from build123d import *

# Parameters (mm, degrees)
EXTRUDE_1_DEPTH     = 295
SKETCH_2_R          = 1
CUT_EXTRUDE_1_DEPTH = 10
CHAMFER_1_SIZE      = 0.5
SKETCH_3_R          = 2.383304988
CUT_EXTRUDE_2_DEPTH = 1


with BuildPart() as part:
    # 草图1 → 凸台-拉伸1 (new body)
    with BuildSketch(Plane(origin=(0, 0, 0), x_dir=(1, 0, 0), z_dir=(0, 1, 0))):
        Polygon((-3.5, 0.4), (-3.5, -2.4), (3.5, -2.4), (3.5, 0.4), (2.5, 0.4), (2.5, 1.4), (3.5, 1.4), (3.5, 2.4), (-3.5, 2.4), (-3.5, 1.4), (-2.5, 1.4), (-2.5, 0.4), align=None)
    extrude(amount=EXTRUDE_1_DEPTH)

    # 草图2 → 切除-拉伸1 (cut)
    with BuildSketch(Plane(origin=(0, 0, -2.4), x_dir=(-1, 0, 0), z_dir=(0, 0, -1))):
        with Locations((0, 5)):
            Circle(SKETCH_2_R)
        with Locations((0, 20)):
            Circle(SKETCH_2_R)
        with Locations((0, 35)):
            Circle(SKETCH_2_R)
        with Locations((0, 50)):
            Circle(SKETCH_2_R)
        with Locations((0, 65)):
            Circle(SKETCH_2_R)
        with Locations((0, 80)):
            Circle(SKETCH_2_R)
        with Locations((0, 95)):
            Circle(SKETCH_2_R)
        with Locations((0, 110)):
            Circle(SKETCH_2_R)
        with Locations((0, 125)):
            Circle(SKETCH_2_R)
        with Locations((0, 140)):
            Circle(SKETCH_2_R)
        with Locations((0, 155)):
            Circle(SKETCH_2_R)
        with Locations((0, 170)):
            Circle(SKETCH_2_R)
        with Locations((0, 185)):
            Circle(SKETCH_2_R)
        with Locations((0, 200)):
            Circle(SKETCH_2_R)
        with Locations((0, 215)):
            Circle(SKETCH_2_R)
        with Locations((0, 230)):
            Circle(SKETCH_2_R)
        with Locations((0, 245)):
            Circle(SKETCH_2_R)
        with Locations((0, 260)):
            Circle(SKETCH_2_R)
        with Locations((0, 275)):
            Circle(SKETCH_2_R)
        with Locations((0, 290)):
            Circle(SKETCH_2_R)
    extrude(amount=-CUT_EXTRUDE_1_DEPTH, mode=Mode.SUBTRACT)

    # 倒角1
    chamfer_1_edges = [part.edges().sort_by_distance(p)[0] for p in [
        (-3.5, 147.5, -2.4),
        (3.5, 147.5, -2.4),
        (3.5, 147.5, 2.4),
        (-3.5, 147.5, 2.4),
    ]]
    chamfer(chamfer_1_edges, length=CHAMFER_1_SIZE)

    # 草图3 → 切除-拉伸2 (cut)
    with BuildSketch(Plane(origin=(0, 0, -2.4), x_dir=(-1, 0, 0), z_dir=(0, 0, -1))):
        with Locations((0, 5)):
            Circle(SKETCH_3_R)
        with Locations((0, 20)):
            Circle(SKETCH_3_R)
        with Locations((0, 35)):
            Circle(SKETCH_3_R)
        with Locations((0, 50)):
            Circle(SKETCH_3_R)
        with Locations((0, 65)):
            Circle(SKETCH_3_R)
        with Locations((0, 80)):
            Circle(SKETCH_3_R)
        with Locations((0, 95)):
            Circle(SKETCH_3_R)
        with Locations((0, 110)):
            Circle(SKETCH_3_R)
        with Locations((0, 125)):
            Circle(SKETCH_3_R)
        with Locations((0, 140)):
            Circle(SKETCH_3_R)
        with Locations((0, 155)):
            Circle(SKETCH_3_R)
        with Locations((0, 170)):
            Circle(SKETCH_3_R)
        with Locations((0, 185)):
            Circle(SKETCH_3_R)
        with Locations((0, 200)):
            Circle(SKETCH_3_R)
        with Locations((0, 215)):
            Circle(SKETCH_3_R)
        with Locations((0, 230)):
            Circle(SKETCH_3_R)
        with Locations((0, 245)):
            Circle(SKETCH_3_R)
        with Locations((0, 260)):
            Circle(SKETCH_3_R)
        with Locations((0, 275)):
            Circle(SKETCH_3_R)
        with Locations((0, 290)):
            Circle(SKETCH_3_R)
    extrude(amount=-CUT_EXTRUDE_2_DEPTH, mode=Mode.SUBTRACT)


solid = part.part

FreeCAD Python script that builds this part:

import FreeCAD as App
import Part
import Sketcher

V = App.Vector


def edges_at(feature, points):
    """Names of the edges that pass closest to the given points."""
    edges = feature.Shape.Edges
    near = lambda p: min(range(len(edges)), key=lambda i: edges[i].distToShape(Part.Vertex(*p))[0])
    return sorted({f"Edge{near(p) + 1}" for p in points})


def add_polygon(sketch, points):
    """Adds a closed chain of lines whose ends are joined by coincident constraints."""
    first, n = sketch.GeometryCount, len(points)
    for a, b in zip(points, points[1:] + points[:1]):
        sketch.addGeometry(Part.LineSegment(App.Vector(*a, 0), App.Vector(*b, 0)), False)
    for i in range(n):
        sketch.addConstraint(Sketcher.Constraint("Coincident", first + i, 2, first + (i + 1) % n, 1))

doc = App.newDocument("Part")
body = doc.addObject("PartDesign::Body", "Body")

# Sketch on XZ plane
sketch1 = body.newObject("Sketcher::SketchObject", "Sketch")
sketch1.AttachmentSupport = (doc.getObject("XZ_Plane"), [""])
sketch1.MapMode = "FlatFace"
add_polygon(sketch1, [(-3.5, -0.4), (-3.5, 2.4), (3.5, 2.4), (3.5, -0.4), (2.5, -0.4), (2.5, -1.4), (3.5, -1.4), (3.5, -2.4), (-3.5, -2.4), (-3.5, -1.4), (-2.5, -1.4), (-2.5, -0.4)])  # lines 0-11
sketch1.addConstraint([
    Sketcher.Constraint("Vertical", 0),
    Sketcher.Constraint("Horizontal", 1),
    Sketcher.Constraint("Vertical", 2),
    Sketcher.Constraint("Horizontal", 3),
    Sketcher.Constraint("Vertical", 4),
    Sketcher.Constraint("Horizontal", 5),
    Sketcher.Constraint("Vertical", 6),
    Sketcher.Constraint("Horizontal", 7),
    Sketcher.Constraint("Vertical", 8),
    Sketcher.Constraint("Horizontal", 9),
    Sketcher.Constraint("Vertical", 10),
    Sketcher.Constraint("Horizontal", 11),
    Sketcher.Constraint("Symmetric", 0, 2, 6, 2, -1, 1),
    Sketcher.Constraint("Symmetric", 5, 2, 8, 2, -2),
    Sketcher.Constraint("Symmetric", 3, 2, 10, 2, -2),
    Sketcher.Constraint("Vertical", 2, 2, 5, 2),
    Sketcher.Constraint("Equal", 11, 4),
    Sketcher.Constraint("Equal", 4, 6),
    Sketcher.Constraint("DistanceX", 1, 1, 1, 2, 7.0),
    Sketcher.Constraint("DistanceX", 3, 2, 3, 1, 1.0),
    Sketcher.Constraint("DistanceY", 0, 1, 0, 2, 2.8),
])
pad1 = body.newObject("PartDesign::Pad", "Pad")
pad1.Profile = sketch1
pad1.Length = 295
pad1.Reversed = True

# Sketch on XY plane
sketch2 = body.newObject("Sketcher::SketchObject", "Sketch001")
sketch2.AttachmentSupport = (doc.getObject("XY_Plane"), [""])
sketch2.MapMode = "FlatFace"
sketch2.AttachmentOffset = App.Placement(V(0, 0, -2.4), App.Rotation())
sketch2.addGeometry([
    Part.Circle(V(0, 5, 0), V(0, 0, 1), 1),  # 0
    Part.Circle(V(0, 20, 0), V(0, 0, 1), 1),  # 1
    Part.Circle(V(0, 35, 0), V(0, 0, 1), 1),  # 2
    Part.Circle(V(0, 50, 0), V(0, 0, 1), 1),  # 3
    Part.Circle(V(0, 65, 0), V(0, 0, 1), 1),  # 4
    Part.Circle(V(0, 80, 0), V(0, 0, 1), 1),  # 5
    Part.Circle(V(0, 95, 0), V(0, 0, 1), 1),  # 6
    Part.Circle(V(0, 110, 0), V(0, 0, 1), 1),  # 7
    Part.Circle(V(0, 125, 0), V(0, 0, 1), 1),  # 8
    Part.Circle(V(0, 140, 0), V(0, 0, 1), 1),  # 9
    Part.Circle(V(0, 155, 0), V(0, 0, 1), 1),  # 10
    Part.Circle(V(0, 170, 0), V(0, 0, 1), 1),  # 11
    Part.Circle(V(0, 185, 0), V(0, 0, 1), 1),  # 12
    Part.Circle(V(0, 200, 0), V(0, 0, 1), 1),  # 13
    Part.Circle(V(0, 215, 0), V(0, 0, 1), 1),  # 14
    Part.Circle(V(0, 230, 0), V(0, 0, 1), 1),  # 15
    Part.Circle(V(0, 245, 0), V(0, 0, 1), 1),  # 16
    Part.Circle(V(0, 260, 0), V(0, 0, 1), 1),  # 17
    Part.Circle(V(0, 275, 0), V(0, 0, 1), 1),  # 18
    Part.Circle(V(0, 290, 0), V(0, 0, 1), 1),  # 19
], False)
sketch2.addConstraint([
    Sketcher.Constraint("Equal", 0, 1),
    Sketcher.Constraint("Equal", 1, 2),
    Sketcher.Constraint("Equal", 2, 3),
    Sketcher.Constraint("Equal", 3, 4),
    Sketcher.Constraint("Equal", 4, 5),
    Sketcher.Constraint("Equal", 5, 6),
    Sketcher.Constraint("Equal", 6, 7),
    Sketcher.Constraint("Equal", 7, 8),
    Sketcher.Constraint("Equal", 8, 9),
    Sketcher.Constraint("Equal", 9, 10),
    Sketcher.Constraint("Equal", 10, 11),
    Sketcher.Constraint("Equal", 11, 12),
    Sketcher.Constraint("Equal", 12, 13),
    Sketcher.Constraint("Equal", 13, 14),
    Sketcher.Constraint("Equal", 14, 15),
    Sketcher.Constraint("Equal", 15, 16),
    Sketcher.Constraint("Equal", 16, 17),
    Sketcher.Constraint("Equal", 17, 18),
    Sketcher.Constraint("Equal", 18, 19),
    Sketcher.Constraint("PointOnObject", 0, 3, -2),
    Sketcher.Constraint("PointOnObject", 1, 3, -2),
    Sketcher.Constraint("PointOnObject", 2, 3, -2),
    Sketcher.Constraint("PointOnObject", 3, 3, -2),
    Sketcher.Constraint("PointOnObject", 4, 3, -2),
    Sketcher.Constraint("PointOnObject", 5, 3, -2),
    Sketcher.Constraint("PointOnObject", 6, 3, -2),
    Sketcher.Constraint("PointOnObject", 7, 3, -2),
    Sketcher.Constraint("PointOnObject", 8, 3, -2),
    Sketcher.Constraint("PointOnObject", 9, 3, -2),
    Sketcher.Constraint("PointOnObject", 10, 3, -2),
    Sketcher.Constraint("PointOnObject", 11, 3, -2),
    Sketcher.Constraint("PointOnObject", 12, 3, -2),
    Sketcher.Constraint("PointOnObject", 13, 3, -2),
    Sketcher.Constraint("PointOnObject", 14, 3, -2),
    Sketcher.Constraint("PointOnObject", 15, 3, -2),
    Sketcher.Constraint("PointOnObject", 16, 3, -2),
    Sketcher.Constraint("PointOnObject", 17, 3, -2),
    Sketcher.Constraint("PointOnObject", 18, 3, -2),
    Sketcher.Constraint("PointOnObject", 19, 3, -2),
    Sketcher.Constraint("Diameter", 0, 2.0),
    Sketcher.Constraint("DistanceY", -1, 1, 0, 3, 5.0),
    Sketcher.Constraint("DistanceY", -1, 1, 1, 3, 20.0),
    Sketcher.Constraint("DistanceY", -1, 1, 2, 3, 35.0),
    Sketcher.Constraint("DistanceY", -1, 1, 3, 3, 50.0),
    Sketcher.Constraint("DistanceY", -1, 1, 4, 3, 65.0),
    Sketcher.Constraint("DistanceY", -1, 1, 5, 3, 80.0),
    Sketcher.Constraint("DistanceY", -1, 1, 6, 3, 95.0),
    Sketcher.Constraint("DistanceY", -1, 1, 7, 3, 110.0),
    Sketcher.Constraint("DistanceY", -1, 1, 8, 3, 125.0),
    Sketcher.Constraint("DistanceY", -1, 1, 9, 3, 140.0),
    Sketcher.Constraint("DistanceY", -1, 1, 10, 3, 155.0),
    Sketcher.Constraint("DistanceY", -1, 1, 11, 3, 170.0),
    Sketcher.Constraint("DistanceY", -1, 1, 12, 3, 185.0),
    Sketcher.Constraint("DistanceY", -1, 1, 13, 3, 200.0),
    Sketcher.Constraint("DistanceY", -1, 1, 14, 3, 215.0),
    Sketcher.Constraint("DistanceY", -1, 1, 15, 3, 230.0),
    Sketcher.Constraint("DistanceY", -1, 1, 16, 3, 245.0),
    Sketcher.Constraint("DistanceY", -1, 1, 17, 3, 260.0),
    Sketcher.Constraint("DistanceY", -1, 1, 18, 3, 275.0),
    Sketcher.Constraint("DistanceY", -1, 1, 19, 3, 290.0),
])
pocket1 = body.newObject("PartDesign::Pocket", "Pocket")
pocket1.Profile = sketch2
pocket1.Length = 10
pocket1.Reversed = True
doc.recompute()

chamfer = body.newObject("PartDesign::Chamfer", "Chamfer")
chamfer.Base = (pocket1, edges_at(pocket1, [
    (-3.5, 147.5, -2.4),
    (3.5, 147.5, -2.4),
    (3.5, 147.5, 2.4),
    (-3.5, 147.5, 2.4),
]))
chamfer.Size = 0.5

# Sketch on XY plane
sketch3 = body.newObject("Sketcher::SketchObject", "Sketch002")
sketch3.AttachmentSupport = (doc.getObject("XY_Plane"), [""])
sketch3.MapMode = "FlatFace"
sketch3.AttachmentOffset = App.Placement(V(0, 0, -2.4), App.Rotation())
sketch3.addGeometry([
    Part.Circle(V(0, 5, 0), V(0, 0, 1), 2.383305),  # 0
    Part.Circle(V(0, 20, 0), V(0, 0, 1), 2.383305),  # 1
    Part.Circle(V(0, 35, 0), V(0, 0, 1), 2.383305),  # 2
    Part.Circle(V(0, 50, 0), V(0, 0, 1), 2.383305),  # 3
    Part.Circle(V(0, 65, 0), V(0, 0, 1), 2.383305),  # 4
    Part.Circle(V(0, 80, 0), V(0, 0, 1), 2.383305),  # 5
    Part.Circle(V(0, 95, 0), V(0, 0, 1), 2.383305),  # 6
    Part.Circle(V(0, 110, 0), V(0, 0, 1), 2.383305),  # 7
    Part.Circle(V(0, 125, 0), V(0, 0, 1), 2.383305),  # 8
    Part.Circle(V(0, 140, 0), V(0, 0, 1), 2.383305),  # 9
    Part.Circle(V(0, 155, 0), V(0, 0, 1), 2.383305),  # 10
    Part.Circle(V(0, 170, 0), V(0, 0, 1), 2.383305),  # 11
    Part.Circle(V(0, 185, 0), V(0, 0, 1), 2.383305),  # 12
    Part.Circle(V(0, 200, 0), V(0, 0, 1), 2.383305),  # 13
    Part.Circle(V(0, 215, 0), V(0, 0, 1), 2.383305),  # 14
    Part.Circle(V(0, 230, 0), V(0, 0, 1), 2.383305),  # 15
    Part.Circle(V(0, 245, 0), V(0, 0, 1), 2.383305),  # 16
    Part.Circle(V(0, 260, 0), V(0, 0, 1), 2.383305),  # 17
    Part.Circle(V(0, 275, 0), V(0, 0, 1), 2.383305),  # 18
    Part.Circle(V(0, 290, 0), V(0, 0, 1), 2.383305),  # 19
], False)
sketch3.addConstraint([
    Sketcher.Constraint("Equal", 0, 1),
    Sketcher.Constraint("Equal", 1, 2),
    Sketcher.Constraint("Equal", 2, 3),
    Sketcher.Constraint("Equal", 3, 4),
    Sketcher.Constraint("Equal", 4, 5),
    Sketcher.Constraint("Equal", 5, 6),
    Sketcher.Constraint("Equal", 6, 7),
    Sketcher.Constraint("Equal", 7, 8),
    Sketcher.Constraint("Equal", 8, 9),
    Sketcher.Constraint("Equal", 9, 10),
    Sketcher.Constraint("Equal", 10, 11),
    Sketcher.Constraint("Equal", 11, 12),
    Sketcher.Constraint("Equal", 12, 13),
    Sketcher.Constraint("Equal", 13, 14),
    Sketcher.Constraint("Equal", 14, 15),
    Sketcher.Constraint("Equal", 15, 16),
    Sketcher.Constraint("Equal", 16, 17),
    Sketcher.Constraint("Equal", 17, 18),
    Sketcher.Constraint("Equal", 18, 19),
    Sketcher.Constraint("PointOnObject", 0, 3, -2),
    Sketcher.Constraint("PointOnObject", 1, 3, -2),
    Sketcher.Constraint("PointOnObject", 2, 3, -2),
    Sketcher.Constraint("PointOnObject", 3, 3, -2),
    Sketcher.Constraint("PointOnObject", 4, 3, -2),
    Sketcher.Constraint("PointOnObject", 5, 3, -2),
    Sketcher.Constraint("PointOnObject", 6, 3, -2),
    Sketcher.Constraint("PointOnObject", 7, 3, -2),
    Sketcher.Constraint("PointOnObject", 8, 3, -2),
    Sketcher.Constraint("PointOnObject", 9, 3, -2),
    Sketcher.Constraint("PointOnObject", 10, 3, -2),
    Sketcher.Constraint("PointOnObject", 11, 3, -2),
    Sketcher.Constraint("PointOnObject", 12, 3, -2),
    Sketcher.Constraint("PointOnObject", 13, 3, -2),
    Sketcher.Constraint("PointOnObject", 14, 3, -2),
    Sketcher.Constraint("PointOnObject", 15, 3, -2),
    Sketcher.Constraint("PointOnObject", 16, 3, -2),
    Sketcher.Constraint("PointOnObject", 17, 3, -2),
    Sketcher.Constraint("PointOnObject", 18, 3, -2),
    Sketcher.Constraint("PointOnObject", 19, 3, -2),
    Sketcher.Constraint("DistanceY", -1, 1, 0, 3, 5.0),
    Sketcher.Constraint("DistanceY", -1, 1, 1, 3, 20.0),
    Sketcher.Constraint("DistanceY", -1, 1, 2, 3, 35.0),
    Sketcher.Constraint("DistanceY", -1, 1, 3, 3, 50.0),
    Sketcher.Constraint("DistanceY", -1, 1, 4, 3, 65.0),
    Sketcher.Constraint("DistanceY", -1, 1, 5, 3, 80.0),
    Sketcher.Constraint("DistanceY", -1, 1, 6, 3, 95.0),
    Sketcher.Constraint("DistanceY", -1, 1, 7, 3, 110.0),
    Sketcher.Constraint("DistanceY", -1, 1, 8, 3, 125.0),
    Sketcher.Constraint("DistanceY", -1, 1, 9, 3, 140.0),
    Sketcher.Constraint("DistanceY", -1, 1, 10, 3, 155.0),
    Sketcher.Constraint("DistanceY", -1, 1, 11, 3, 170.0),
    Sketcher.Constraint("DistanceY", -1, 1, 12, 3, 185.0),
    Sketcher.Constraint("DistanceY", -1, 1, 13, 3, 200.0),
    Sketcher.Constraint("DistanceY", -1, 1, 14, 3, 215.0),
    Sketcher.Constraint("DistanceY", -1, 1, 15, 3, 230.0),
    Sketcher.Constraint("DistanceY", -1, 1, 16, 3, 245.0),
    Sketcher.Constraint("DistanceY", -1, 1, 17, 3, 260.0),
    Sketcher.Constraint("DistanceY", -1, 1, 18, 3, 275.0),
    Sketcher.Constraint("DistanceY", -1, 1, 19, 3, 290.0),
    Sketcher.Constraint("Diameter", 0, 4.76661),
])
pocket2 = body.newObject("PartDesign::Pocket", "Pocket001")
pocket2.Profile = sketch3
pocket2.Length = 1
pocket2.Reversed = True

doc.recompute()
